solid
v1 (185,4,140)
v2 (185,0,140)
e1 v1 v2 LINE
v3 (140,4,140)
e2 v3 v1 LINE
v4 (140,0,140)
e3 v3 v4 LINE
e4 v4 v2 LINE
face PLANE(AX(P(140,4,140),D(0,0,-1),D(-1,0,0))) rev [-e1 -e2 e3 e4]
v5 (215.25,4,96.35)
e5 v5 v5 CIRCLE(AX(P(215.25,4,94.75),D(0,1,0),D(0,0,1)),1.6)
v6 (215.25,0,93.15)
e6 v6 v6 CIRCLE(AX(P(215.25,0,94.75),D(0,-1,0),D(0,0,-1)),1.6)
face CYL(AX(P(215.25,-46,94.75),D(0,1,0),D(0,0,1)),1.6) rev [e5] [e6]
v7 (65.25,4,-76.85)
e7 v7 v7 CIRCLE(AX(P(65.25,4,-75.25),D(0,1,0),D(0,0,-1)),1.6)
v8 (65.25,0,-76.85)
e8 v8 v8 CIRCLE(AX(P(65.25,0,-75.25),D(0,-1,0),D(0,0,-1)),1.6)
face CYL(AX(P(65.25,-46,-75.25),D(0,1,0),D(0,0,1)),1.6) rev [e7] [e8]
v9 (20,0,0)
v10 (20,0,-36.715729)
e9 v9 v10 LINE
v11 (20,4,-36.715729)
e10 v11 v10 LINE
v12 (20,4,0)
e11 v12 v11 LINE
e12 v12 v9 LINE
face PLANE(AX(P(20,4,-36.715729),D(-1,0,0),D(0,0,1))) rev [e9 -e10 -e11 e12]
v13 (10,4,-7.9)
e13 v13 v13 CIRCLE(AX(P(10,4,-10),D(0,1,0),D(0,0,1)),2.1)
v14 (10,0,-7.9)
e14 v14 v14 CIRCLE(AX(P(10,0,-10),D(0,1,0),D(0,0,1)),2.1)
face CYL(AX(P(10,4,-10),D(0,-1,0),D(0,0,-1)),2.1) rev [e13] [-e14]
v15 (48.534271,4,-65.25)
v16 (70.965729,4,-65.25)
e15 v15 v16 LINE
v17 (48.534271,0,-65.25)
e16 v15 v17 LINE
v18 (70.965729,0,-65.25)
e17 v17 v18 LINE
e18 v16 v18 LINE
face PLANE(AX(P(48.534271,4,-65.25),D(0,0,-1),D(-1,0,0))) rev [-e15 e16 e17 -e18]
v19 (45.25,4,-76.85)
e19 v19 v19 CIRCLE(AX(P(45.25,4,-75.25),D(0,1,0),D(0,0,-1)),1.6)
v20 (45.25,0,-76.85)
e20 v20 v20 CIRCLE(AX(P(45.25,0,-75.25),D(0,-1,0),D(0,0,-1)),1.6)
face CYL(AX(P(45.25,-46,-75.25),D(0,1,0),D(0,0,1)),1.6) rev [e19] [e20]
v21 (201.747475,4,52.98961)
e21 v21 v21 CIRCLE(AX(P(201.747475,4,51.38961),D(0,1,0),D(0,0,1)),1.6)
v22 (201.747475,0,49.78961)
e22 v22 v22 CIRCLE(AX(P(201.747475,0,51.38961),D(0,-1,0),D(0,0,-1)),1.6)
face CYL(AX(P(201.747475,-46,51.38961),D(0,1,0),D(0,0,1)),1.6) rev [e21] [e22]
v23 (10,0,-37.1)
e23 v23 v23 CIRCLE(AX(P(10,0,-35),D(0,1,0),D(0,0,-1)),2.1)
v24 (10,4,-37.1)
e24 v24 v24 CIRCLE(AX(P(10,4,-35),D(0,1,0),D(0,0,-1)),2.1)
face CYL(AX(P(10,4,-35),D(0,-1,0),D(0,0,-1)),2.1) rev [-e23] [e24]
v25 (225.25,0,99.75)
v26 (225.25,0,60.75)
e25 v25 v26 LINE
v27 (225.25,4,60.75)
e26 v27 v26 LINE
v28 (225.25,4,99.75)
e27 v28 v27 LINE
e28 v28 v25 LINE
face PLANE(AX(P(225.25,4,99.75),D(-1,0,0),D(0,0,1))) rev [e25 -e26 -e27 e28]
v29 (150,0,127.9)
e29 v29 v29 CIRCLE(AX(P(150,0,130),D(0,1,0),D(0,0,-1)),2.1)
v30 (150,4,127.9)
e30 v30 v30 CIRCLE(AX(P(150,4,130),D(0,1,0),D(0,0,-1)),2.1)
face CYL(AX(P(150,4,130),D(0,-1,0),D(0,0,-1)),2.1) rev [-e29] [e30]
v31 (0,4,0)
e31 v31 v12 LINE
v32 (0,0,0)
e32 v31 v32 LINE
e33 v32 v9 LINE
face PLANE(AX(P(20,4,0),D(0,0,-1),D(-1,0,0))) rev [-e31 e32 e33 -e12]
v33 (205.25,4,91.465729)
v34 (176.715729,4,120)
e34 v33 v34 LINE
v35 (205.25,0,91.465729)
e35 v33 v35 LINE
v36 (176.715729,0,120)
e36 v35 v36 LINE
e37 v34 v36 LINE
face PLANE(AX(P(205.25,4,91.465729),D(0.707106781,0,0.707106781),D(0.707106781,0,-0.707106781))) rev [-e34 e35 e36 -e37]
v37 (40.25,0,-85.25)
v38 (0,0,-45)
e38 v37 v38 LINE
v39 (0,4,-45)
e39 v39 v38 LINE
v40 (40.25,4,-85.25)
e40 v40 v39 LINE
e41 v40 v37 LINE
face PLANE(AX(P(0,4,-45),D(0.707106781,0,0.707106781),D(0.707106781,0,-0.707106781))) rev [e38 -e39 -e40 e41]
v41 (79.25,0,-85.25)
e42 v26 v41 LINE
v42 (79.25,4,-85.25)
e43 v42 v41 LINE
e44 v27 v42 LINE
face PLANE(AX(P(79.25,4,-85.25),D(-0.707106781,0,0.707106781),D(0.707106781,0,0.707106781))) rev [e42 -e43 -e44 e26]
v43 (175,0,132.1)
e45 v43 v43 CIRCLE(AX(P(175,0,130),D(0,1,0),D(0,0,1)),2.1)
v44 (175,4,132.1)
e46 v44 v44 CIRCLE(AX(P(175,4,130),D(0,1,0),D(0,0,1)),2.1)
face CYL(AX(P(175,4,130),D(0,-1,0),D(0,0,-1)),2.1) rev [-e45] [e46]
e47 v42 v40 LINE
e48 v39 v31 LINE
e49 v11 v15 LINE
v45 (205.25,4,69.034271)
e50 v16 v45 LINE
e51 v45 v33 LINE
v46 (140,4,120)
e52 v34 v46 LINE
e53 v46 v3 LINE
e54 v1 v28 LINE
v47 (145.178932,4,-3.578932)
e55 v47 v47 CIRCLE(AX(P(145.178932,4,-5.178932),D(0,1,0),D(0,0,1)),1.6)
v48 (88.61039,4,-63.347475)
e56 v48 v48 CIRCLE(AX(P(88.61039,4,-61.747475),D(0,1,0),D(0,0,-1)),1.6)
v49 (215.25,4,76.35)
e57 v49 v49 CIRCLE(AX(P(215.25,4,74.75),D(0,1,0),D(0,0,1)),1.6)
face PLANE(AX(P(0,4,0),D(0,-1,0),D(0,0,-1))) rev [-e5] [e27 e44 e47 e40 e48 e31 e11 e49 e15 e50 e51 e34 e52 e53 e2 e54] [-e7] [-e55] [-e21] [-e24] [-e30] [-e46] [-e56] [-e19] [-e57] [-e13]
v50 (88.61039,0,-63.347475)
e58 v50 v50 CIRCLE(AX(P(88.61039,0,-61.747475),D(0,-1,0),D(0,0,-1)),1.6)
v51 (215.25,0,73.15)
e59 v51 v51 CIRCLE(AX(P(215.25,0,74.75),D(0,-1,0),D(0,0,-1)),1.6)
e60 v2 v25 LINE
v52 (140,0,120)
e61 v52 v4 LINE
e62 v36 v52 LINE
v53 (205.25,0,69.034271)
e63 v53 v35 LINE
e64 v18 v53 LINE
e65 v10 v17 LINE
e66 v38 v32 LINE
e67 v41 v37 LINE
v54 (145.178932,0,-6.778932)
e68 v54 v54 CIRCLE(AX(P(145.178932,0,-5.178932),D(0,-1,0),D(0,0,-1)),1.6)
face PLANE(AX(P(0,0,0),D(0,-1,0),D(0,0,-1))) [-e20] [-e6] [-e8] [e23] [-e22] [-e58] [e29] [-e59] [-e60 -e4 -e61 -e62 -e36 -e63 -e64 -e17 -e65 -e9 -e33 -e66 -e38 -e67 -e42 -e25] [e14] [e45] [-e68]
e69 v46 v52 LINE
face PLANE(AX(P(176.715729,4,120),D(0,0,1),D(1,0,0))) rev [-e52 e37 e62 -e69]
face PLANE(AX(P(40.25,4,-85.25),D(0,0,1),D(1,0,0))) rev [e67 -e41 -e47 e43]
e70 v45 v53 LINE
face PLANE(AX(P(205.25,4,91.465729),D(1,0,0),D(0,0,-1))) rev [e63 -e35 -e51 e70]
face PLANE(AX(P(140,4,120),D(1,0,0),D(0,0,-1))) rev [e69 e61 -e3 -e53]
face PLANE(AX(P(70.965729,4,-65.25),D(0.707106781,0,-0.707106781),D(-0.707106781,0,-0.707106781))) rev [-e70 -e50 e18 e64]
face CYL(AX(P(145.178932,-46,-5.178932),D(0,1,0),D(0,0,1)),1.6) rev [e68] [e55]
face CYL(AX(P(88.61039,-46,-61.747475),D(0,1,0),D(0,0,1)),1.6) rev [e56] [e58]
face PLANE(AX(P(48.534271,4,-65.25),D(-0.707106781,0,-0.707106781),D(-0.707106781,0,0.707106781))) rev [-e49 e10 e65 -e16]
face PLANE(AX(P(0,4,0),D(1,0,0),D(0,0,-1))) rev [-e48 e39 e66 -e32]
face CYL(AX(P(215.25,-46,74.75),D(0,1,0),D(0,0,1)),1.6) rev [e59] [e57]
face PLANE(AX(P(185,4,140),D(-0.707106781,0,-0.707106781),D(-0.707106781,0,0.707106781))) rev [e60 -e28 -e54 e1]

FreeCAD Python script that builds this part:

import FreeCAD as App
import Part
import Sketcher
from FreeCAD import Vector
Q = App.Units.Quantity

doc = App.newDocument("Part")
params = doc.addObject("Spreadsheet::Sheet", "Params")
for row, (alias, value) in enumerate([
    ("sketch1_diameter", "4.2 mm"),
    ("sketch1_width", "20 mm"),
    ("sketch1_width2", "45 mm"),
    ("sketch1_width3", "39 mm"),
    ("pad1_length", "4 mm"),
    ("sketch2_diameter", "3.2 mm"),
    ("pocket1_length", "50 mm"),
], start=1):
    params.set(f"A{row}", alias)
    params.set(f"B{row}", "=" + value)
    params.setAlias(f"B{row}", alias)

body = doc.addObject("PartDesign::Body", "Body")

# Sketch on XZ plane
sketch1 = body.newObject("Sketcher::SketchObject", "Sketch")
sketch1.AttachmentSupport = (doc.getObject("XZ_Plane"), [""])
sketch1.MapMode = "FlatFace"
sketch1.addGeometry([
    Part.LineSegment(Vector(0, 0, 0), Vector(20, 0, 0)),  # 0
    Part.LineSegment(Vector(20, 0, 0), Vector(20, -36.7, 0)),  # 1
    Part.LineSegment(Vector(20, -36.7, 0), Vector(48.5, -65.2, 0)),  # 2
    Part.LineSegment(Vector(48.5, -65.2, 0), Vector(71, -65.2, 0)),  # 3
    Part.LineSegment(Vector(71, -65.2, 0), Vector(205.2, 69, 0)),  # 4
    Part.LineSegment(Vector(205.2, 69, 0), Vector(205.2, 91.5, 0)),  # 5
    Part.LineSegment(Vector(205.2, 91.5, 0), Vector(176.7, 120, 0)),  # 6
    Part.LineSegment(Vector(176.7, 120, 0), Vector(140, 120, 0)),  # 7
    Part.LineSegment(Vector(140, 120, 0), Vector(140, 140, 0)),  # 8
    Part.LineSegment(Vector(140, 140, 0), Vector(185, 140, 0)),  # 9
    Part.LineSegment(Vector(185, 140, 0), Vector(225.2, 99.8, 0)),  # 10
    Part.LineSegment(Vector(225.2, 99.8, 0), Vector(225.2, 60.8, 0)),  # 11
    Part.LineSegment(Vector(225.2, 60.8, 0), Vector(79.2, -85.2, 0)),  # 12
    Part.LineSegment(Vector(79.2, -85.2, 0), Vector(40.2, -85.2, 0)),  # 13
    Part.LineSegment(Vector(40.2, -85.2, 0), Vector(0, -45, 0)),  # 14
    Part.LineSegment(Vector(0, -45, 0), Vector(0, 0, 0)),  # 15
    Part.Circle(Vector(175, 130, 0), Vector(0, 0, 1), 2.1),  # 16
    Part.Circle(Vector(150, 130, 0), Vector(0, 0, 1), 2.1),  # 17
    Part.Circle(Vector(10, -10, 0), Vector(0, 0, 1), 2.1),  # 18
    Part.Circle(Vector(10, -35, 0), Vector(0, 0, 1), 2.1),  # 19
], False)
sketch1.addConstraint([
    Sketcher.Constraint("Coincident", 0, 2, 1, 1),
    Sketcher.Constraint("Coincident", 1, 2, 2, 1),
    Sketcher.Constraint("Coincident", 2, 2, 3, 1),
    Sketcher.Constraint("Coincident", 3, 2, 4, 1),
    Sketcher.Constraint("Coincident", 4, 2, 5, 1),
    Sketcher.Constraint("Coincident", 5, 2, 6, 1),
    Sketcher.Constraint("Coincident", 6, 2, 7, 1),
    Sketcher.Constraint("Coincident", 7, 2, 8, 1),
    Sketcher.Constraint("Coincident", 8, 2, 9, 1),
    Sketcher.Constraint("Coincident", 9, 2, 10, 1),
    Sketcher.Constraint("Coincident", 10, 2, 11, 1),
    Sketcher.Constraint("Coincident", 11, 2, 12, 1),
    Sketcher.Constraint("Coincident", 12, 2, 13, 1),
    Sketcher.Constraint("Coincident", 13, 2, 14, 1),
    Sketcher.Constraint("Coincident", 14, 2, 15, 1),
    Sketcher.Constraint("Coincident", 15, 2, 0, 1),
    Sketcher.Constraint("Horizontal", 0),
    Sketcher.Constraint("Vertical", 1),
    Sketcher.Constraint("Horizontal", 3),
    Sketcher.Constraint("Vertical", 5),
    Sketcher.Constraint("Horizontal", 7),
    Sketcher.Constraint("Vertical", 8),
    Sketcher.Constraint("Horizontal", 9),
    Sketcher.Constraint("Vertical", 11),
    Sketcher.Constraint("Horizontal", 13),
    Sketcher.Constraint("Vertical", 15),
    Sketcher.Constraint("Coincident", 15, 2, -1, 1),
    Sketcher.Constraint("Equal", 16, 17),
    Sketcher.Constraint("Equal", 17, 18),
    Sketcher.Constraint("Equal", 18, 19),
    Sketcher.Constraint("Perpendicular", 2, 4),
    Sketcher.Constraint("Perpendicular", 4, 6),
    Sketcher.Constraint("Parallel", 6, 10),
    Sketcher.Constraint("Perpendicular", 10, 12),
    Sketcher.Constraint("Perpendicular", 12, 14),
    Sketcher.Constraint("Horizontal", 16, 3, 17, 3),
    Sketcher.Constraint("Vertical", 18, 3, 19, 3),
    Sketcher.Constraint("Equal", 7, 1),
    Sketcher.Constraint("Equal", 3, 5),
    Sketcher.Constraint("Equal", 0, 8),
    Sketcher.Constraint("Equal", 13, 11),
    Sketcher.Constraint("Equal", 9, 15),
    Sketcher.Constraint("Equal", 2, 6),
    Sketcher.Constraint("Equal", 10, 14),
    Sketcher.Constraint("Diameter", 16, Q("4.2 mm")),
    Sketcher.Constraint("DistanceX", 0, 1, 0, 2, Q("20 mm")),
    Sketcher.Constraint("DistanceX", 9, 1, 9, 2, Q("45 mm")),
    Sketcher.Constraint("DistanceX", 13, 2, 13, 1, Q("39 mm")),
    Sketcher.Constraint("DistanceX", -1, 1, 16, 3, Q("175 mm")),
    Sketcher.Constraint("DistanceY", -1, 1, 16, 3, Q("130 mm")),
    Sketcher.Constraint("DistanceX", -1, 1, 17, 3, Q("150 mm")),
    Sketcher.Constraint("DistanceX", -1, 1, 18, 3, Q("10 mm")),
    Sketcher.Constraint("DistanceY", 18, 3, -1, 1, Q("10 mm")),
    Sketcher.Constraint("DistanceY", 19, 3, -1, 1, Q("35 mm")),
    Sketcher.Constraint("DistanceY", -1, 1, 6, 2, Q("120 mm")),
    Sketcher.Constraint("DistanceX", 5, 2, 10, 2, Q("20 mm")),
    Sketcher.Constraint("DistanceY", 2, 2, -1, 1, Q("65.25 mm")),
    Sketcher.Constraint("DistanceX", 7, 2, 7, 1, Q("36.715729 mm")),
    Sketcher.Constraint("DistanceX", 3, 1, 3, 2, Q("22.431458 mm")),
])
sketch1.setExpression("Constraints[44]", "Params.sketch1_diameter")
sketch1.setExpression("Constraints[45]", "Params.sketch1_width")
sketch1.setExpression("Constraints[46]", "Params.sketch1_width2")
sketch1.setExpression("Constraints[47]", "Params.sketch1_width3")
pad1 = body.newObject("PartDesign::Pad", "Pad")
pad1.Profile = sketch1
pad1.setExpression("Length", "Params.pad1_length")
pad1.Reversed = True

# Sketch on XZ plane
sketch2 = body.newObject("Sketcher::SketchObject", "Sketch001")
sketch2.AttachmentSupport = (doc.getObject("XZ_Plane"), [""])
sketch2.MapMode = "FlatFace"
sketch2.AttachmentOffset = App.Placement(Vector(0, 0, -4), App.Rotation())
sketch2.addGeometry([
    Part.Circle(Vector(215.2, 94.8, 0), Vector(0, 0, 1), 1.6),  # 0
    Part.Circle(Vector(215.2, 74.8, 0), Vector(0, 0, 1), 1.6),  # 1
    Part.Circle(Vector(201.7, 51.4, 0), Vector(0, 0, 1), 1.6),  # 2
    Part.Circle(Vector(145.2, -5.2, 0), Vector(0, 0, 1), 1.6),  # 3
    Part.Circle(Vector(88.6, -61.7, 0), Vector(0, 0, 1), 1.6),  # 4
    Part.Circle(Vector(65.2, -75.2, 0), Vector(0, 0, 1), 1.6),  # 5
    Part.Circle(Vector(45.2, -75.2, 0), Vector(0, 0, 1), 1.6),  # 6
], False)
sketch2.addConstraint([
    Sketcher.Constraint("Equal", 0, 1),
    Sketcher.Constraint("Equal", 1, 2),
    Sketcher.Constraint("Equal", 2, 3),
    Sketcher.Constraint("Equal", 3, 4),
    Sketcher.Constraint("Equal", 4, 5),
    Sketcher.Constraint("Equal", 5, 6),
    Sketcher.Constraint("Horizontal", 5, 3, 6, 3),
    Sketcher.Constraint("Vertical", 0, 3, 1, 3),
    Sketcher.Constraint("Diameter", 0, Q("3.2 mm")),
    Sketcher.Constraint("DistanceY", 1, 3, 0, 3, Q("20 mm")),
    Sketcher.Constraint("DistanceX", 5, 3, 1, 3, Q("150 mm")),
    Sketcher.Constraint("DistanceY", 5, 3, 1, 3, Q("150 mm")),
    Sketcher.Constraint("DistanceX", 6, 3, 5, 3, Q("20 mm")),
    Sketcher.Constraint("DistanceX", -1, 1, 0, 3, Q("215.25 mm")),
    Sketcher.Constraint("DistanceY", -1, 1, 0, 3, Q("94.75 mm")),
    Sketcher.Constraint("DistanceY", -1, 1, 2, 3, Q("51.38961 mm")),
    Sketcher.Constraint("DistanceX", -1, 1, 4, 3, Q("88.61039 mm")),
    Sketcher.Constraint("DistanceX", -1, 1, 2, 3, Q("201.747475 mm")),
    Sketcher.Constraint("DistanceX", -1, 1, 3, 3, Q("145.178932 mm")),
    Sketcher.Constraint("DistanceY", 3, 3, -1, 1, Q("5.178932 mm")),
    Sketcher.Constraint("DistanceY", 4, 3, -1, 1, Q("61.747475 mm")),
])
sketch2.setExpression("Constraints[8]", "Params.sketch2_diameter")
pocket1 = body.newObject("PartDesign::Pocket", "Pocket")
pocket1.Profile = sketch2
pocket1.setExpression("Length", "Params.pocket1_length")
pocket1.Reversed = True

doc.recompute()
